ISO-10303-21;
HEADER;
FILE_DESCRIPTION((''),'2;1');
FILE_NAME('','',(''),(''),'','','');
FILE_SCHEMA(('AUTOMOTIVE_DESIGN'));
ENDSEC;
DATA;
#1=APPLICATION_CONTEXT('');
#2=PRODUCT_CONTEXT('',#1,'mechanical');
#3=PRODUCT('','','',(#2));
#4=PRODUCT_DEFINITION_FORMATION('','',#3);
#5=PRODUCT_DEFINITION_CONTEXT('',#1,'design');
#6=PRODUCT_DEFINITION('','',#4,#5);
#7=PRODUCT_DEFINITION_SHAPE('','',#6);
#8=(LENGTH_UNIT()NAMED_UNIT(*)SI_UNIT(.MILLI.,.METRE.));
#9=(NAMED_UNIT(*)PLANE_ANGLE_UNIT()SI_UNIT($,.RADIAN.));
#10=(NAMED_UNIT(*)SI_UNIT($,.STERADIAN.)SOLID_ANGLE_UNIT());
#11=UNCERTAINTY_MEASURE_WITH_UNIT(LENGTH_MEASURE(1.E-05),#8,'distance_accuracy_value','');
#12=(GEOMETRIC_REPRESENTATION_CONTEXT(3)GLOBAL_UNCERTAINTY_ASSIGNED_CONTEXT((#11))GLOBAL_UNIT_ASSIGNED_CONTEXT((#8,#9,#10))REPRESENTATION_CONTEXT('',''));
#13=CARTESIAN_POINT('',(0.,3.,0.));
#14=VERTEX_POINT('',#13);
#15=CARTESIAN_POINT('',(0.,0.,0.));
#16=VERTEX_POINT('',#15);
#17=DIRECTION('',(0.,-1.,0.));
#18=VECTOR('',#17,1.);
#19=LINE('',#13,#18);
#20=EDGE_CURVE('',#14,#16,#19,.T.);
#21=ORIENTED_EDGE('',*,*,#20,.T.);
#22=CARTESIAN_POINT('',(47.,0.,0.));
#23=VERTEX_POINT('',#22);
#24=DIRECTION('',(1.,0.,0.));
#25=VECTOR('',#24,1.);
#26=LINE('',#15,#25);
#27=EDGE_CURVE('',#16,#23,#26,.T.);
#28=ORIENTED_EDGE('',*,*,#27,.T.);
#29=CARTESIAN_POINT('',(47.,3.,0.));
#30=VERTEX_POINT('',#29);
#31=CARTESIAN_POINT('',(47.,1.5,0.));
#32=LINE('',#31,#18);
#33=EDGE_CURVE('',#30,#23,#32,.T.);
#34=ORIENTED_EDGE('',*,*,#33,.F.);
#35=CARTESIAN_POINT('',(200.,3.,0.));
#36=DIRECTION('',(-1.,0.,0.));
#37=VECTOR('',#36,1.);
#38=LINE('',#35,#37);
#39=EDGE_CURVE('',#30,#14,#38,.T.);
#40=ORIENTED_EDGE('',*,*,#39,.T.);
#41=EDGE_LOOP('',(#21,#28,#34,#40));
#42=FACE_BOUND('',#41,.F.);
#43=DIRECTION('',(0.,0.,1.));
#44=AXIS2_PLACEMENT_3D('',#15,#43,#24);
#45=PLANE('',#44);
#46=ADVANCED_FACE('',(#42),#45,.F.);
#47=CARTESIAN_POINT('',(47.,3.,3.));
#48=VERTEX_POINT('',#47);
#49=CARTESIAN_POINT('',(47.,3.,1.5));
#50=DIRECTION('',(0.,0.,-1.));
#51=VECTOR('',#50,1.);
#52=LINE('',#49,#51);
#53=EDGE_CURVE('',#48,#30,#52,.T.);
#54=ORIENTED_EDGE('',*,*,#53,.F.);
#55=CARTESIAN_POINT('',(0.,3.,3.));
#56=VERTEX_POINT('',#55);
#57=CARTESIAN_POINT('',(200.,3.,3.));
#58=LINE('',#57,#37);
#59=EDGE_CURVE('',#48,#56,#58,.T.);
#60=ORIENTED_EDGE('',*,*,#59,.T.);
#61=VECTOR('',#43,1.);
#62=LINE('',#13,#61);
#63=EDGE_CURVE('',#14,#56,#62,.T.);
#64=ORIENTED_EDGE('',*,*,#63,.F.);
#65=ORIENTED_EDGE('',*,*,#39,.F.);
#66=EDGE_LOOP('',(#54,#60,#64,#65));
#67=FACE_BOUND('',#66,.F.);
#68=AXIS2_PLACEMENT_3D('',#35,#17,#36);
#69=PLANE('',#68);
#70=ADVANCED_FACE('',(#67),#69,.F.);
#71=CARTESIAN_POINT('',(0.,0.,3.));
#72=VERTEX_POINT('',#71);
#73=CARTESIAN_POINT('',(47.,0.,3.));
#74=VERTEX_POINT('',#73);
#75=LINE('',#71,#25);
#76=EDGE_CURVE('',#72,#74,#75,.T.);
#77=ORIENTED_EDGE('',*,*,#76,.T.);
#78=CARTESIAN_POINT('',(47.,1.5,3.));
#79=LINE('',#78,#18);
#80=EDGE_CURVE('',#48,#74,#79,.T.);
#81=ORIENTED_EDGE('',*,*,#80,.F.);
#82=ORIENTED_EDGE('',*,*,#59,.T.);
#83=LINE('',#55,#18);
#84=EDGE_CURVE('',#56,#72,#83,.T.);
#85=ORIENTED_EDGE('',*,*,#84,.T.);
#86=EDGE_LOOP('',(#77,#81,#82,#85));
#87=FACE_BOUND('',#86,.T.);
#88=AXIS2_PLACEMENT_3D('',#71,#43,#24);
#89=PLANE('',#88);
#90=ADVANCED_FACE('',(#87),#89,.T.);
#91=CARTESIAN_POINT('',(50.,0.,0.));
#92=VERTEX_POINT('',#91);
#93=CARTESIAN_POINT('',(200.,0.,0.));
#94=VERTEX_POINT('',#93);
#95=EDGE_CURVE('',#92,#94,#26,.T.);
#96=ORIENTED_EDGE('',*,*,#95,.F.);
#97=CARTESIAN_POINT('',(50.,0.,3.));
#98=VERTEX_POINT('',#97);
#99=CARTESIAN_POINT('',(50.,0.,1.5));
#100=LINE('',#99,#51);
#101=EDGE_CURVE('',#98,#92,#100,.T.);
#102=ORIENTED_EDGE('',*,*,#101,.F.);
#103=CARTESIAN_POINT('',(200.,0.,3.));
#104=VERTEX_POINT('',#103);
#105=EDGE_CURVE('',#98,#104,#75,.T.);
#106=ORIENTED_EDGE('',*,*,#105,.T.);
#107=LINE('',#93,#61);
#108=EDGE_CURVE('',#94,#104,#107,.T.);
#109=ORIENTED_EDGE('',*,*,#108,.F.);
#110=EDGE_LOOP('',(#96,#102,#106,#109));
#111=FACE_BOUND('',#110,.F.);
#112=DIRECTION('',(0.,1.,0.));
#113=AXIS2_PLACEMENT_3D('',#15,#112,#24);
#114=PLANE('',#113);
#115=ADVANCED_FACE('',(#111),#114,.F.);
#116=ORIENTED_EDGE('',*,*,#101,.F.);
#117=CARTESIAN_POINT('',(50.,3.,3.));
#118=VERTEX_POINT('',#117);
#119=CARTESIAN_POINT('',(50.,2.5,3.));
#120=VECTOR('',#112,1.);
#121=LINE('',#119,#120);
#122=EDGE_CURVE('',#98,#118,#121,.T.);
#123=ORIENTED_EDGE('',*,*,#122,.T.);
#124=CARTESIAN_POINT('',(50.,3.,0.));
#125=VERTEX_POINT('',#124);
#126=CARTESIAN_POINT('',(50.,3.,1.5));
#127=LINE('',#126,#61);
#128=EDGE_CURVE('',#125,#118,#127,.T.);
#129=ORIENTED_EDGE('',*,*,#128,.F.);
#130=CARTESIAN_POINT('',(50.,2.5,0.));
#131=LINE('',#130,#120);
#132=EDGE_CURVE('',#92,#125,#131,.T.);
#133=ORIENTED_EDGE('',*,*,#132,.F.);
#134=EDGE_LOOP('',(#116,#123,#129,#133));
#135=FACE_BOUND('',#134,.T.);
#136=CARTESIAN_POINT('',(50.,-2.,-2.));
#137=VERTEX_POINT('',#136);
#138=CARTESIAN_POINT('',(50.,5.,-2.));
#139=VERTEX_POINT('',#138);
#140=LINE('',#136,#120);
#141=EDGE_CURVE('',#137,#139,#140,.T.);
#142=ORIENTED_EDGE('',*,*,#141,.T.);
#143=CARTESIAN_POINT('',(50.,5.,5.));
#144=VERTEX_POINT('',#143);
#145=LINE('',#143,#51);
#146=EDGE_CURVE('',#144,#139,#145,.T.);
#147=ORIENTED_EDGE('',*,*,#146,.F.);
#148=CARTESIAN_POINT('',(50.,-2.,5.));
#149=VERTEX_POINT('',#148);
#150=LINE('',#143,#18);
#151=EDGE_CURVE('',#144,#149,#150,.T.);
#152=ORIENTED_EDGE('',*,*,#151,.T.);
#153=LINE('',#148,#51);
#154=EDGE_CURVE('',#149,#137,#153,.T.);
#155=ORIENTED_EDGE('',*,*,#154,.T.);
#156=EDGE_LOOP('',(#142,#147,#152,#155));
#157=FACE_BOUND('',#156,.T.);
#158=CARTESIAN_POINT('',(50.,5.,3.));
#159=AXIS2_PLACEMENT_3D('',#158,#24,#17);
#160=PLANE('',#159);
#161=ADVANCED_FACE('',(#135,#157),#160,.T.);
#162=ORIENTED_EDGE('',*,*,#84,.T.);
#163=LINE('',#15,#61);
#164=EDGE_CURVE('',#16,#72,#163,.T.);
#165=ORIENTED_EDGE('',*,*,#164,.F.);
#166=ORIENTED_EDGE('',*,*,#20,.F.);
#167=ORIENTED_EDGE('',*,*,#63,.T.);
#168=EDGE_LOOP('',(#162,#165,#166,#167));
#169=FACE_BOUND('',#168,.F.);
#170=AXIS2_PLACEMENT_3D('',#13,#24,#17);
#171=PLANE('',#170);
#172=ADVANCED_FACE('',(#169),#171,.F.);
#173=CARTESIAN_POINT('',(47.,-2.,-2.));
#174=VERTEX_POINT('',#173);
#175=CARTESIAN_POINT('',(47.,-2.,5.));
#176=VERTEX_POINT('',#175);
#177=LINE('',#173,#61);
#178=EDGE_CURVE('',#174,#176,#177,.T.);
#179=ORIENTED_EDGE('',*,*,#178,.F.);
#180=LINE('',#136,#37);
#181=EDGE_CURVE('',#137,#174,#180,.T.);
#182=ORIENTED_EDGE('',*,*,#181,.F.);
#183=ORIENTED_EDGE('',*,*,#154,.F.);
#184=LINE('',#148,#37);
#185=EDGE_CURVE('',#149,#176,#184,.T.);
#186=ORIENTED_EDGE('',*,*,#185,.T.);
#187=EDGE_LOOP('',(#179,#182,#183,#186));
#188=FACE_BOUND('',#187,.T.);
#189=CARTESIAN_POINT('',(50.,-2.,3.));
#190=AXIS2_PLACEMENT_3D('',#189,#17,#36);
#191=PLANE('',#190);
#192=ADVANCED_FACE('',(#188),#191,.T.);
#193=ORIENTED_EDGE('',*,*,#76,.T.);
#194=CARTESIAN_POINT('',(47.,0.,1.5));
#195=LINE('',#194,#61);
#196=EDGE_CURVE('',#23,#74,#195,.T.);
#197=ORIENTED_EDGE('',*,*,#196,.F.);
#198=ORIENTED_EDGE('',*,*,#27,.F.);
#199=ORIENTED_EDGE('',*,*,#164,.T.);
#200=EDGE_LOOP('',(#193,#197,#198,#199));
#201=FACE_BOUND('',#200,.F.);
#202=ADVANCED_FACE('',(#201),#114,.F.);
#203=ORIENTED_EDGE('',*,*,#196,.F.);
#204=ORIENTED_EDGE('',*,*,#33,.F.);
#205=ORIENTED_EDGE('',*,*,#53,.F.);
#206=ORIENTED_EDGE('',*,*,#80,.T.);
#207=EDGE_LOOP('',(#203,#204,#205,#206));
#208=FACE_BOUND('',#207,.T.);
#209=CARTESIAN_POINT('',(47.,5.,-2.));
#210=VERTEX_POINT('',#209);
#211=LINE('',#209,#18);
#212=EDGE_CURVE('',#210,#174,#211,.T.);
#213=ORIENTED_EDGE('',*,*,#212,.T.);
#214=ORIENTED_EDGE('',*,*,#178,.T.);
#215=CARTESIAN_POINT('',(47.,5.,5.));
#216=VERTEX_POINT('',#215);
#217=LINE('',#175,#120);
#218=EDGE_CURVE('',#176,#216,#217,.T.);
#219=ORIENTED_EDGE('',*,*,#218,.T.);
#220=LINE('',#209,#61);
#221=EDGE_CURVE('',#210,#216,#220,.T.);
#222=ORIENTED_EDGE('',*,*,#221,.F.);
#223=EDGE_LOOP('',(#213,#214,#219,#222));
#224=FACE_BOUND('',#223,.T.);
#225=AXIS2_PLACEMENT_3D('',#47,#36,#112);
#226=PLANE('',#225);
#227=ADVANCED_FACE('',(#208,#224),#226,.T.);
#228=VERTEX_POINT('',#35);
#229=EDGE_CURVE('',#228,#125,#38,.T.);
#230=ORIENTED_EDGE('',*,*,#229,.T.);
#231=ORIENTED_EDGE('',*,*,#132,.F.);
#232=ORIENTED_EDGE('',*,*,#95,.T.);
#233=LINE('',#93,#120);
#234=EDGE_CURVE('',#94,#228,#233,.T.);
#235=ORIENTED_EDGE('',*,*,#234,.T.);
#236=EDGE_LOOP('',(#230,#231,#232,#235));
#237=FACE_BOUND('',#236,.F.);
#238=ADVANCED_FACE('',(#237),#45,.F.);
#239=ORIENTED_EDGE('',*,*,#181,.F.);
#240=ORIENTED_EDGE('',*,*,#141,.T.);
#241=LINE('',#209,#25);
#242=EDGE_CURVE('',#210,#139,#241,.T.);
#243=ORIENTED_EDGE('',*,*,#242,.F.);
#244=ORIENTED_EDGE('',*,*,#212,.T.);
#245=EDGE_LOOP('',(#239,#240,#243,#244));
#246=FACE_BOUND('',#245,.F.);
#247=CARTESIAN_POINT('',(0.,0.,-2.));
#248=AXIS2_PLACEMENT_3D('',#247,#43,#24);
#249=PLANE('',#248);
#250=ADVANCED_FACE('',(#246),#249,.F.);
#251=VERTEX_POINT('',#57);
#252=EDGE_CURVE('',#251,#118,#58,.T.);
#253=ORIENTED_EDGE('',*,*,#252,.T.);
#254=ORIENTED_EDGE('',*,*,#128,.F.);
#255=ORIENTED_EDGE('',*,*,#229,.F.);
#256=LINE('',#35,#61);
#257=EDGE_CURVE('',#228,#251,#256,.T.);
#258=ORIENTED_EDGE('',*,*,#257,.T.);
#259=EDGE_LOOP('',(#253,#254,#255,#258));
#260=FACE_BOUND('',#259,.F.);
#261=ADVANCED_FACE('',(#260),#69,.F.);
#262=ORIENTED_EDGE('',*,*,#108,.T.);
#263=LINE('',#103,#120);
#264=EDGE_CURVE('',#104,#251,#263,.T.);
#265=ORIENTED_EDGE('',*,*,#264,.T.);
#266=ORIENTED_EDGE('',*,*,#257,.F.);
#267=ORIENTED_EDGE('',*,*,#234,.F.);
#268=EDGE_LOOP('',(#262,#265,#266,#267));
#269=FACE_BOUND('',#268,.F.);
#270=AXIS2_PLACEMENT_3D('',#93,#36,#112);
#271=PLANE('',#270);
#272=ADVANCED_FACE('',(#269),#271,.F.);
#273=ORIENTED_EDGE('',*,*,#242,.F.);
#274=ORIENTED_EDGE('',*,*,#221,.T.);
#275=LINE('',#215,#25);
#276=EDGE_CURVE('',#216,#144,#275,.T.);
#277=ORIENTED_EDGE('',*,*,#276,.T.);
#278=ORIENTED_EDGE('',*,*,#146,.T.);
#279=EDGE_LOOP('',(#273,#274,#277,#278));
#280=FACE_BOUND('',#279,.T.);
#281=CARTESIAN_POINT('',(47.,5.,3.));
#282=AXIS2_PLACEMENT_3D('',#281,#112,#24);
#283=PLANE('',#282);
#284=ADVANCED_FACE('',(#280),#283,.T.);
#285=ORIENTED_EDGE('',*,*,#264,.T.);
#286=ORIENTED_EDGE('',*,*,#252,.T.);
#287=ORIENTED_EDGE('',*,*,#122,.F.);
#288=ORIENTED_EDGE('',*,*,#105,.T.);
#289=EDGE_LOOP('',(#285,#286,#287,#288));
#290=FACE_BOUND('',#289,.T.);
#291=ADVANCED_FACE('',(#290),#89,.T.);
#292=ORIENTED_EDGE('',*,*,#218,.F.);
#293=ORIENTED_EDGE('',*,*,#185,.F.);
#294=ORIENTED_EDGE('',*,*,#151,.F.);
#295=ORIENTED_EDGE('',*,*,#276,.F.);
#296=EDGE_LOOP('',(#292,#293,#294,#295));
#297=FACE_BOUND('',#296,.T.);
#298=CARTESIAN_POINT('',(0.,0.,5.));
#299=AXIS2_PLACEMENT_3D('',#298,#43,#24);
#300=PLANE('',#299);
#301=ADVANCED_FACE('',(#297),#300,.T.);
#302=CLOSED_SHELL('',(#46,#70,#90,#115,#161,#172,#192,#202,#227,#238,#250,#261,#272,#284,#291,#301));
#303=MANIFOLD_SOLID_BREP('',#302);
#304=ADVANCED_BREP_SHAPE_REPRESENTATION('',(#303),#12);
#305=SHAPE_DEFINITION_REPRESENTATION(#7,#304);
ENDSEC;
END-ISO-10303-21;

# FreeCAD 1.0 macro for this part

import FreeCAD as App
import Part
import Sketcher
from FreeCAD import Vector


def add_polygon(sketch, points):
    """Adds a closed chain of lines whose ends are joined by coincident constraints."""
    first, n = sketch.GeometryCount, len(points)
    for a, b in zip(points, points[1:] + points[:1]):
        sketch.addGeometry(Part.LineSegment(App.Vector(*a, 0), App.Vector(*b, 0)), False)
    for i in range(n):
        sketch.addConstraint(Sketcher.Constraint("Coincident", first + i, 2, first + (i + 1) % n, 1))

doc = App.newDocument("Part")
params = doc.addObject("Spreadsheet::Sheet", "Params")
for row, (alias, value) in enumerate([
    ("sketch1_width", "200 mm"),
    ("sketch1_height", "3 mm"),
    ("pad1_length", "3 mm"),
    ("sketch2_width", "3 mm"),
    ("sketch2_height", "7 mm"),
    ("pad2_length", "2 mm"),
    ("pad2_length2", "5 mm"),
], start=1):
    params.set(f"A{row}", alias)
    params.set(f"B{row}", "=" + value)
    params.setAlias(f"B{row}", alias)

body = doc.addObject("PartDesign::Body", "Body")

sketch1 = doc.addObject("Sketcher::SketchObject", "Sketch")
body.addObject(sketch1)
sketch1.AttachmentSupport = (doc.XY_Plane, [""])
sketch1.MapMode = "FlatFace"
add_polygon(sketch1, [(0, 3), (0, 0), (200, 0), (200, 3)])
sketch1.addConstraint([
    Sketcher.Constraint("Vertical", 0),
    Sketcher.Constraint("Horizontal", 1),
    Sketcher.Constraint("Vertical", 2),
    Sketcher.Constraint("Horizontal", 3),
    Sketcher.Constraint("Coincident", 0, 2, -1, 1),
    Sketcher.Constraint("DistanceX", 1, 1, 1, 2, 200.0),
    Sketcher.Constraint("DistanceY", 0, 2, 0, 1, 3.0),
])
sketch1.setExpression("Constraints[9]", "Params.sketch1_width")
sketch1.setExpression("Constraints[10]", "Params.sketch1_height")
pad1 = doc.addObject("PartDesign::Pad", "Pad")
body.addObject(pad1)
pad1.Profile = sketch1
pad1.setExpression("Length", "Params.pad1_length")

sketch2 = doc.addObject("Sketcher::SketchObject", "Sketch001")
body.addObject(sketch2)
sketch2.AttachmentSupport = (doc.XY_Plane, [""])
sketch2.MapMode = "FlatFace"
sketch2.AttachmentOffset = App.Placement(Vector(0, 0, 3), App.Rotation())
add_polygon(sketch2, [(50, 5), (47, 5), (47, -2), (50, -2)])
sketch2.addConstraint([
    Sketcher.Constraint("Horizontal", 0),
    Sketcher.Constraint("Vertical", 1),
    Sketcher.Constraint("Horizontal", 2),
    Sketcher.Constraint("Vertical", 3),
    Sketcher.Constraint("DistanceX", -1, 1, 0, 2, 47.0),
    Sketcher.Constraint("DistanceY", 1, 2, -1, 1, 2.0),
    Sketcher.Constraint("DistanceX", 0, 2, 0, 1, 3.0),
    Sketcher.Constraint("DistanceY", 1, 2, 1, 1, 7.0),
])
sketch2.setExpression("Constraints[10]", "Params.sketch2_width")
sketch2.setExpression("Constraints[11]", "Params.sketch2_height")
pad2 = doc.addObject("PartDesign::Pad", "Pad001")
body.addObject(pad2)
pad2.Profile = sketch2
pad2.Type = "TwoLengths"
pad2.setExpression("Length", "Params.pad2_length")
pad2.setExpression("Length2", "Params.pad2_length2")

doc.recompute()
